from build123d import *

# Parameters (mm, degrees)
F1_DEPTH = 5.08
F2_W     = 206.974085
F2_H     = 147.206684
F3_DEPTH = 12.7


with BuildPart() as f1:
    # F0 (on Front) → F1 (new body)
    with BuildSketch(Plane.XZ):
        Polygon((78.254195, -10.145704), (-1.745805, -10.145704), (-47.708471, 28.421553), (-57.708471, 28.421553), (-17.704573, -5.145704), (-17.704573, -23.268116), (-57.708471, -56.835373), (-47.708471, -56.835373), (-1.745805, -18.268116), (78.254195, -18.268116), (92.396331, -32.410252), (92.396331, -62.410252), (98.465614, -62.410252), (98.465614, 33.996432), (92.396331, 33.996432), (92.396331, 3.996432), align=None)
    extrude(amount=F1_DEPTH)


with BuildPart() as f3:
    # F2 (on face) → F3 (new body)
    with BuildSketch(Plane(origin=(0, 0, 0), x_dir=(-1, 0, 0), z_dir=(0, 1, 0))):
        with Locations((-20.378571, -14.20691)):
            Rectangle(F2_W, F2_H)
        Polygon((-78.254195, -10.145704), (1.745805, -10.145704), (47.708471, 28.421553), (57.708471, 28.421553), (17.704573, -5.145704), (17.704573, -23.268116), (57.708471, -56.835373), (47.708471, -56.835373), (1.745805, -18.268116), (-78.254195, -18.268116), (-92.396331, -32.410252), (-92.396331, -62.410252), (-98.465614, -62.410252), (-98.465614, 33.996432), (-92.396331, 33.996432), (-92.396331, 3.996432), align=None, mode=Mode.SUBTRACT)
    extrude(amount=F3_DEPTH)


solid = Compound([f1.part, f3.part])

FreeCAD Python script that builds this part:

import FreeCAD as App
import Part
import Sketcher

V = App.Vector
Q = App.Units.Quantity

doc = App.newDocument("Part")
body = doc.addObject("PartDesign::Body", "Body")

sketch1 = body.newObject("Sketcher::SketchObject", "Sketch")
sketch1.AttachmentSupport = (doc.getObject("XZ_Plane"), [""])
sketch1.MapMode = "FlatFace"
sketch1.addGeometry([
    Part.LineSegment(V(78.254195, -10.145704, 0), V(-1.745805, -10.145704, 0)),
    Part.LineSegment(V(-1.745805, -10.145704, 0), V(-47.708471, 28.421553, 0)),
    Part.LineSegment(V(-47.708471, 28.421553, 0), V(-57.708471, 28.421553, 0)),
    Part.LineSegment(V(-57.708471, 28.421553, 0), V(-17.704573, -5.145704, 0)),
    Part.LineSegment(V(-17.704573, -5.145704, 0), V(-17.704573, -23.268116, 0)),
    Part.LineSegment(V(-17.704573, -23.268116, 0), V(-57.708471, -56.835373, 0)),
    Part.LineSegment(V(-57.708471, -56.835373, 0), V(-47.708471, -56.835373, 0)),
    Part.LineSegment(V(-47.708471, -56.835373, 0), V(-1.745805, -18.268116, 0)),
    Part.LineSegment(V(-1.745805, -18.268116, 0), V(78.254195, -18.268116, 0)),
    Part.LineSegment(V(78.254195, -18.268116, 0), V(92.396331, -32.410252, 0)),
    Part.LineSegment(V(92.396331, -32.410252, 0), V(92.396331, -62.410252, 0)),
    Part.LineSegment(V(92.396331, -62.410252, 0), V(98.465614, -62.410252, 0)),
    Part.LineSegment(V(98.465614, -62.410252, 0), V(98.465614, 33.996432, 0)),
    Part.LineSegment(V(98.465614, 33.996432, 0), V(92.396331, 33.996432, 0)),
    Part.LineSegment(V(92.396331, 33.996432, 0), V(92.396331, 3.996432, 0)),
    Part.LineSegment(V(92.396331, 3.996432, 0), V(78.254195, -10.145704, 0)),
], False)
sketch1.addConstraint([
    Sketcher.Constraint("Coincident", 0, 2, 1, 1),
    Sketcher.Constraint("Coincident", 1, 2, 2, 1),
    Sketcher.Constraint("Coincident", 2, 2, 3, 1),
    Sketcher.Constraint("Coincident", 3, 2, 4, 1),
    Sketcher.Constraint("Coincident", 4, 2, 5, 1),
    Sketcher.Constraint("Coincident", 5, 2, 6, 1),
    Sketcher.Constraint("Coincident", 6, 2, 7, 1),
    Sketcher.Constraint("Coincident", 7, 2, 8, 1),
    Sketcher.Constraint("Coincident", 8, 2, 9, 1),
    Sketcher.Constraint("Coincident", 9, 2, 10, 1),
    Sketcher.Constraint("Coincident", 10, 2, 11, 1),
    Sketcher.Constraint("Coincident", 11, 2, 12, 1),
    Sketcher.Constraint("Coincident", 12, 2, 13, 1),
    Sketcher.Constraint("Coincident", 13, 2, 14, 1),
    Sketcher.Constraint("Coincident", 14, 2, 15, 1),
    Sketcher.Constraint("Coincident", 15, 2, 0, 1),
    Sketcher.Constraint("Horizontal", 0),
    Sketcher.Constraint("Horizontal", 2),
    Sketcher.Constraint("Vertical", 4),
    Sketcher.Constraint("Horizontal", 6),
    Sketcher.Constraint("Horizontal", 8),
    Sketcher.Constraint("Vertical", 10),
    Sketcher.Constraint("Horizontal", 11),
    Sketcher.Constraint("Vertical", 12),
    Sketcher.Constraint("Horizontal", 13),
    Sketcher.Constraint("Vertical", 14),
    Sketcher.Constraint("Parallel", 1, 3),
    Sketcher.Constraint("Parallel", 5, 7),
    Sketcher.Constraint("Perpendicular", 9, 15),
    Sketcher.Constraint("Vertical", 2, 2, 5, 2),
    Sketcher.Constraint("Vertical", 1, 2, 6, 2),
    Sketcher.Constraint("Vertical", 0, 2, 7, 2),
    Sketcher.Constraint("Vertical", 10, 2, 13, 2),
    Sketcher.Constraint("Vertical", 8, 2, 15, 2),
    Sketcher.Constraint("Equal", 10, 14),
    Sketcher.Constraint("Equal", 3, 5),
    Sketcher.Constraint("Equal", 9, 15),
    Sketcher.Constraint("DistanceX", 0, 2, 0, 1, 80.0),
    Sketcher.Constraint("DistanceX", 2, 2, 2, 1, 10.0),
    Sketcher.Constraint("DistanceY", 10, 2, 10, 1, 30.0),
    Sketcher.Constraint("Angle", 1, Q("139.999999 deg")),
    Sketcher.Constraint("Distance", 1, 60.0),
    Sketcher.Constraint("Distance", 9, 20.000001),
    Sketcher.Constraint("DistanceY", 0, 2, 3, 2, 5.0),
    Sketcher.Constraint("DistanceY", 4, 2, 4, 1, 18.122412),
    Sketcher.Constraint("DistanceX", 11, 1, 11, 2, 6.069283),
    Sketcher.Constraint("DistanceX", 1, 2, -1, 1, 47.708471),
    Sketcher.Constraint("DistanceY", -1, 1, 14, 2, 3.996432),
])
pad1 = body.newObject("PartDesign::Pad", "Pad")
pad1.Profile = sketch1
pad1.Length = 5.08
body2 = doc.addObject("PartDesign::Body", "Body001")

sketch2 = body2.newObject("Sketcher::SketchObject", "Sketch001")
sketch2.AttachmentSupport = (doc.getObject("XZ_Plane001"), [""])
sketch2.MapMode = "FlatFace"
sketch2.addGeometry([
    Part.LineSegment(V(123.865613, 59.396432, 0), V(123.865613, -87.810252, 0)),
    Part.LineSegment(V(123.865613, -87.810252, 0), V(-83.108471, -87.810252, 0)),
    Part.LineSegment(V(-83.108471, -87.810252, 0), V(-83.108471, 59.396432, 0)),
    Part.LineSegment(V(-83.108471, 59.396432, 0), V(123.865613, 59.396432, 0)),
    Part.LineSegment(V(92.396331, 3.996432, 0), V(78.254195, -10.145704, 0)),
    Part.LineSegment(V(78.254195, -10.145704, 0), V(-1.745805, -10.145704, 0)),
    Part.LineSegment(V(-1.745805, -10.145704, 0), V(-47.708471, 28.421553, 0)),
    Part.LineSegment(V(-47.708471, 28.421553, 0), V(-57.708471, 28.421553, 0)),
    Part.LineSegment(V(-57.708471, 28.421553, 0), V(-17.704573, -5.145704, 0)),
    Part.LineSegment(V(-17.704573, -5.145704, 0), V(-17.704573, -23.268116, 0)),
    Part.LineSegment(V(-17.704573, -23.268116, 0), V(-57.708471, -56.835373, 0)),
    Part.LineSegment(V(-57.708471, -56.835373, 0), V(-47.708471, -56.835373, 0)),
    Part.LineSegment(V(-47.708471, -56.835373, 0), V(-1.745805, -18.268116, 0)),
    Part.LineSegment(V(-1.745805, -18.268116, 0), V(78.254195, -18.268116, 0)),
    Part.LineSegment(V(78.254195, -18.268116, 0), V(92.396331, -32.410252, 0)),
    Part.LineSegment(V(92.396331, -32.410252, 0), V(92.396331, -62.410252, 0)),
    Part.LineSegment(V(92.396331, -62.410252, 0), V(98.465614, -62.410252, 0)),
    Part.LineSegment(V(98.465614, -62.410252, 0), V(98.465614, 33.996432, 0)),
    Part.LineSegment(V(98.465614, 33.996432, 0), V(92.396331, 33.996432, 0)),
    Part.LineSegment(V(92.396331, 33.996432, 0), V(92.396331, 3.996432, 0)),
], False)
sketch2.addConstraint([
    Sketcher.Constraint("Coincident", 0, 2, 1, 1),
    Sketcher.Constraint("Coincident", 1, 2, 2, 1),
    Sketcher.Constraint("Coincident", 2, 2, 3, 1),
    Sketcher.Constraint("Coincident", 3, 2, 0, 1),
    Sketcher.Constraint("Coincident", 4, 2, 5, 1),
    Sketcher.Constraint("Coincident", 5, 2, 6, 1),
    Sketcher.Constraint("Coincident", 6, 2, 7, 1),
    Sketcher.Constraint("Coincident", 7, 2, 8, 1),
    Sketcher.Constraint("Coincident", 8, 2, 9, 1),
    Sketcher.Constraint("Coincident", 9, 2, 10, 1),
    Sketcher.Constraint("Coincident", 10, 2, 11, 1),
    Sketcher.Constraint("Coincident", 11, 2, 12, 1),
    Sketcher.Constraint("Coincident", 12, 2, 13, 1),
    Sketcher.Constraint("Coincident", 13, 2, 14, 1),
    Sketcher.Constraint("Coincident", 14, 2, 15, 1),
    Sketcher.Constraint("Coincident", 15, 2, 16, 1),
    Sketcher.Constraint("Coincident", 16, 2, 17, 1),
    Sketcher.Constraint("Coincident", 17, 2, 18, 1),
    Sketcher.Constraint("Coincident", 18, 2, 19, 1),
    Sketcher.Constraint("Coincident", 19, 2, 4, 1),
    Sketcher.Constraint("Vertical", 0),
    Sketcher.Constraint("Horizontal", 1),
    Sketcher.Constraint("Vertical", 2),
    Sketcher.Constraint("Horizontal", 3),
    Sketcher.Constraint("Horizontal", 5),
    Sketcher.Constraint("Horizontal", 7),
    Sketcher.Constraint("Vertical", 9),
    Sketcher.Constraint("Horizontal", 11),
    Sketcher.Constraint("Horizontal", 13),
    Sketcher.Constraint("Vertical", 15),
    Sketcher.Constraint("Horizontal", 16),
    Sketcher.Constraint("Vertical", 17),
    Sketcher.Constraint("Horizontal", 18),
    Sketcher.Constraint("Vertical", 19),
    Sketcher.Constraint("Parallel", 6, 8),
    Sketcher.Constraint("Parallel", 10, 12),
    Sketcher.Constraint("Perpendicular", 4, 14),
    Sketcher.Constraint("Vertical", 7, 2, 10, 2),
    Sketcher.Constraint("Vertical", 6, 2, 11, 2),
    Sketcher.Constraint("Vertical", 5, 2, 12, 2),
    Sketcher.Constraint("Vertical", 4, 2, 13, 2),
    Sketcher.Constraint("Vertical", 15, 2, 18, 2),
    Sketcher.Constraint("Equal", 15, 19),
    Sketcher.Constraint("Equal", 8, 10),
    Sketcher.Constraint("Equal", 4, 14),
    Sketcher.Constraint("DistanceX", 5, 2, 5, 1, 80.0),
    Sketcher.Constraint("DistanceX", 7, 2, 7, 1, 10.0),
    Sketcher.Constraint("DistanceY", 15, 2, 15, 1, 30.0),
    Sketcher.Constraint("Angle", 6, Q("139.999999 deg")),
    Sketcher.Constraint("Distance", 4, 20.000001),
    Sketcher.Constraint("Distance", 6, 60.0),
    Sketcher.Constraint("DistanceY", 5, 2, 8, 2, 5.0),
    Sketcher.Constraint("DistanceX", 2, 2, 6, 2, 35.4),
    Sketcher.Constraint("DistanceY", 0, 2, 14, 2, 55.4),
    Sketcher.Constraint("DistanceX", 16, 2, 0, 2, 25.399999),
    Sketcher.Constraint("DistanceY", 17, 2, 3, 2, 25.4),
    Sketcher.Constraint("DistanceY", 9, 2, 9, 1, 18.122412),
    Sketcher.Constraint("DistanceX", 1, 2, 1, 1, 206.974085),
    Sketcher.Constraint("DistanceX", 1, 2, -1, 1, 83.108471),
    Sketcher.Constraint("DistanceY", -1, 1, 2, 2, 59.396432),
])
pad2 = body2.newObject("PartDesign::Pad", "Pad001")
pad2.Profile = sketch2
pad2.Length = 12.7
pad2.Reversed = True

doc.recompute()
